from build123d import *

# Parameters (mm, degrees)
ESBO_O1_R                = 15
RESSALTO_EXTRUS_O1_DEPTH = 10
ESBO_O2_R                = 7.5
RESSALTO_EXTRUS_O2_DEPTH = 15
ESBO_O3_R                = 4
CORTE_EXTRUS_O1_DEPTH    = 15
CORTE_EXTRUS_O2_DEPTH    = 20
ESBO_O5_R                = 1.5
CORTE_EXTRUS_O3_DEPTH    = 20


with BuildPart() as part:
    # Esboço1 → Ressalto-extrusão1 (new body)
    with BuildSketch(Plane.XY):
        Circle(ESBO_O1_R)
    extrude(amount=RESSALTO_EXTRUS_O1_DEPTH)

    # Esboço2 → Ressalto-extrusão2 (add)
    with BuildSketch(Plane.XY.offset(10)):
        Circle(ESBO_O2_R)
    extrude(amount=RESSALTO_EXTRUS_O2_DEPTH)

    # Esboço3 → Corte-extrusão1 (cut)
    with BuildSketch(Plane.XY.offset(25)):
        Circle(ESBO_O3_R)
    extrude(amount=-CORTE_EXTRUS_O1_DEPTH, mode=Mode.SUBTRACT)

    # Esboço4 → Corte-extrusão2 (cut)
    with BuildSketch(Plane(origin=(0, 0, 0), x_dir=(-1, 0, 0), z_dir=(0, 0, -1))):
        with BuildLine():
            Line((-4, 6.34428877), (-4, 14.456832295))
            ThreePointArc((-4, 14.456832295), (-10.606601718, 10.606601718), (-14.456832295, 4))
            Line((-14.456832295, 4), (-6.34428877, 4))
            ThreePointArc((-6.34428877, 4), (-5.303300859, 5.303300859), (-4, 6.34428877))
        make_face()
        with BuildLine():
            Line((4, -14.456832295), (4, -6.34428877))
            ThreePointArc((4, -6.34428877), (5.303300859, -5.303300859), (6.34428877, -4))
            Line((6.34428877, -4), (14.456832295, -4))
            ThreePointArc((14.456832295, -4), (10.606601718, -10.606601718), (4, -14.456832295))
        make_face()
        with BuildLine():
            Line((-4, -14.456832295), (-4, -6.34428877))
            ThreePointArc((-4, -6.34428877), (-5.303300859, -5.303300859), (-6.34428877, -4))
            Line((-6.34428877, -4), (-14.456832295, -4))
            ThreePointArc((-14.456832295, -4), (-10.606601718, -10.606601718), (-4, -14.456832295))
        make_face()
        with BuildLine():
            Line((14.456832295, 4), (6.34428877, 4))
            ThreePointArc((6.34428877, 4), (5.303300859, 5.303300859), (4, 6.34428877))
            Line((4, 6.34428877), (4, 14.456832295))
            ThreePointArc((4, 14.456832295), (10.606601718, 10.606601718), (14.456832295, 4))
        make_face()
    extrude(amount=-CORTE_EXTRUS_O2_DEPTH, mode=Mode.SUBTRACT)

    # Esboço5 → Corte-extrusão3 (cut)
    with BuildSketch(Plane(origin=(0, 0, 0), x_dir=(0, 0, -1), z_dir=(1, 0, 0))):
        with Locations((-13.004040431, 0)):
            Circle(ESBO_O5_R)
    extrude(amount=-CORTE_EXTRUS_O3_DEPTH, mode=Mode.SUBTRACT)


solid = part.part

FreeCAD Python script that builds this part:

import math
import FreeCAD as App
import Part
import Sketcher
from FreeCAD import Vector

doc = App.newDocument("Part")
body = doc.addObject("PartDesign::Body", "Body")

# Sketch on XY plane
sketch1 = doc.addObject("Sketcher::SketchObject", "Sketch")
body.addObject(sketch1)
sketch1.AttachmentSupport = (doc.XY_Plane, [""])
sketch1.MapMode = "FlatFace"
sketch1.addGeometry(Part.Circle(Vector(0, 0, 0), Vector(0, 0, 1), 15), False)
sketch1.addConstraint(Sketcher.Constraint("Coincident", 0, 3, -1, 1))
sketch1.addConstraint(Sketcher.Constraint("Diameter", 0, 30.0))
pad1 = doc.addObject("PartDesign::Pad", "Pad")
body.addObject(pad1)
pad1.Profile = sketch1
pad1.Length = 10

# Sketch on XY plane
sketch2 = doc.addObject("Sketcher::SketchObject", "Sketch001")
body.addObject(sketch2)
sketch2.AttachmentSupport = (doc.XY_Plane, [""])
sketch2.MapMode = "FlatFace"
sketch2.AttachmentOffset = App.Placement(Vector(0, 0, 10), App.Rotation())
sketch2.addGeometry(Part.Circle(Vector(0, 0, 0), Vector(0, 0, 1), 8), False)
sketch2.addConstraint(Sketcher.Constraint("Coincident", 0, 3, -1, 1))
sketch2.addConstraint(Sketcher.Constraint("Diameter", 0, 15.0))
pad2 = doc.addObject("PartDesign::Pad", "Pad001")
body.addObject(pad2)
pad2.Profile = sketch2
pad2.Length = 15

# Sketch on XY plane
sketch3 = doc.addObject("Sketcher::SketchObject", "Sketch002")
body.addObject(sketch3)
sketch3.AttachmentSupport = (doc.XY_Plane, [""])
sketch3.MapMode = "FlatFace"
sketch3.AttachmentOffset = App.Placement(Vector(0, 0, 25), App.Rotation())
sketch3.addGeometry(Part.Circle(Vector(0, 0, 0), Vector(0, 0, 1), 4), False)
sketch3.addConstraint(Sketcher.Constraint("Coincident", 0, 3, -1, 1))
sketch3.addConstraint(Sketcher.Constraint("Diameter", 0, 8.0))
pocket1 = doc.addObject("PartDesign::Pocket", "Pocket")
body.addObject(pocket1)
pocket1.Profile = sketch3
pocket1.Length = 15

# Sketch on XY plane
sketch4 = doc.addObject("Sketcher::SketchObject", "Sketch003")
body.addObject(sketch4)
sketch4.AttachmentSupport = (doc.XY_Plane, [""])
sketch4.MapMode = "FlatFace"
sketch4.addGeometry(Part.LineSegment(Vector(4, 6.3, 0), Vector(4, 14.5, 0)), False)
sketch4.addGeometry(Part.ArcOfCircle(Part.Circle(Vector(0, 0, 0), Vector(0, 0, 1), 15), math.radians(15), math.radians(75)), False)
sketch4.addGeometry(Part.LineSegment(Vector(14.5, 4, 0), Vector(6.3, 4, 0)), False)
sketch4.addGeometry(Part.ArcOfCircle(Part.Circle(Vector(0, 0, 0), Vector(0, 0, 1), 7.5), math.radians(32), math.radians(58)), False)
sketch4.addGeometry(Part.LineSegment(Vector(-4, -6.3, 0), Vector(-4, -14.5, 0)), False)
sketch4.addGeometry(Part.ArcOfCircle(Part.Circle(Vector(0, 0, 0), Vector(0, 0, 1), 15), math.radians(-165), math.radians(-105)), False)
sketch4.addGeometry(Part.LineSegment(Vector(-14.5, -4, 0), Vector(-6.3, -4, 0)), False)
sketch4.addGeometry(Part.ArcOfCircle(Part.Circle(Vector(0, 0, 0), Vector(0, 0, 1), 7.5), math.radians(-148), math.radians(-122)), False)
sketch4.addGeometry(Part.LineSegment(Vector(4, -14.5, 0), Vector(4, -6.3, 0)), False)
sketch4.addGeometry(Part.ArcOfCircle(Part.Circle(Vector(0, 0, 0), Vector(0, 0, 1), 7.5), math.radians(-58), math.radians(-32)), False)
sketch4.addGeometry(Part.LineSegment(Vector(6.3, -4, 0), Vector(14.5, -4, 0)), False)
sketch4.addGeometry(Part.ArcOfCircle(Part.Circle(Vector(0, 0, 0), Vector(0, 0, 1), 15), math.radians(-75), math.radians(-15)), False)
sketch4.addGeometry(Part.LineSegment(Vector(-6.3, 4, 0), Vector(-14.5, 4, 0)), False)
sketch4.addGeometry(Part.ArcOfCircle(Part.Circle(Vector(0, 0, 0), Vector(0, 0, 1), 15), math.radians(105), math.radians(165)), False)
sketch4.addGeometry(Part.LineSegment(Vector(-4, 14.5, 0), Vector(-4, 6.3, 0)), False)
sketch4.addGeometry(Part.ArcOfCircle(Part.Circle(Vector(0, 0, 0), Vector(0, 0, 1), 7.5), math.radians(122), math.radians(148)), False)
sketch4.addConstraint(Sketcher.Constraint("Coincident", 0, 2, 1, 2))
sketch4.addConstraint(Sketcher.Constraint("Coincident", 1, 1, 2, 1))
sketch4.addConstraint(Sketcher.Constraint("Coincident", 2, 2, 3, 1))
sketch4.addConstraint(Sketcher.Constraint("Coincident", 3, 2, 0, 1))
sketch4.addConstraint(Sketcher.Constraint("Coincident", 4, 2, 5, 2))
sketch4.addConstraint(Sketcher.Constraint("Coincident", 5, 1, 6, 1))
sketch4.addConstraint(Sketcher.Constraint("Coincident", 6, 2, 7, 1))
sketch4.addConstraint(Sketcher.Constraint("Coincident", 7, 2, 4, 1))
sketch4.addConstraint(Sketcher.Constraint("Coincident", 8, 2, 9, 1))
sketch4.addConstraint(Sketcher.Constraint("Coincident", 9, 2, 10, 1))
sketch4.addConstraint(Sketcher.Constraint("Coincident", 10, 2, 11, 2))
sketch4.addConstraint(Sketcher.Constraint("Coincident", 11, 1, 8, 1))
sketch4.addConstraint(Sketcher.Constraint("Coincident", 12, 2, 13, 2))
sketch4.addConstraint(Sketcher.Constraint("Coincident", 13, 1, 14, 1))
sketch4.addConstraint(Sketcher.Constraint("Coincident", 14, 2, 15, 1))
sketch4.addConstraint(Sketcher.Constraint("Coincident", 15, 2, 12, 1))
sketch4.addConstraint(Sketcher.Constraint("Vertical", 0))
sketch4.addConstraint(Sketcher.Constraint("Horizontal", 2))
sketch4.addConstraint(Sketcher.Constraint("Vertical", 4))
sketch4.addConstraint(Sketcher.Constraint("Horizontal", 6))
sketch4.addConstraint(Sketcher.Constraint("Vertical", 8))
sketch4.addConstraint(Sketcher.Constraint("Horizontal", 10))
sketch4.addConstraint(Sketcher.Constraint("Horizontal", 12))
sketch4.addConstraint(Sketcher.Constraint("Vertical", 14))
sketch4.addConstraint(Sketcher.Constraint("Coincident", 1, 3, -1, 1))
sketch4.addConstraint(Sketcher.Constraint("Coincident", 3, 3, -1, 1))
sketch4.addConstraint(Sketcher.Constraint("Coincident", 5, 3, -1, 1))
sketch4.addConstraint(Sketcher.Constraint("Coincident", 7, 3, -1, 1))
sketch4.addConstraint(Sketcher.Constraint("Coincident", 9, 3, -1, 1))
sketch4.addConstraint(Sketcher.Constraint("Coincident", 11, 3, -1, 1))
sketch4.addConstraint(Sketcher.Constraint("Coincident", 13, 3, -1, 1))
sketch4.addConstraint(Sketcher.Constraint("Coincident", 15, 3, -1, 1))
sketch4.addConstraint(Sketcher.Constraint("Equal", 1, 5))
sketch4.addConstraint(Sketcher.Constraint("Equal", 3, 7))
sketch4.addConstraint(Sketcher.Constraint("Equal", 7, 9))
sketch4.addConstraint(Sketcher.Constraint("Equal", 5, 11))
sketch4.addConstraint(Sketcher.Constraint("Equal", 11, 13))
sketch4.addConstraint(Sketcher.Constraint("Equal", 9, 15))
sketch4.addConstraint(Sketcher.Constraint("Horizontal", 7, 2, 8, 2))
sketch4.addConstraint(Sketcher.Constraint("Horizontal", 6, 2, 9, 2))
sketch4.addConstraint(Sketcher.Constraint("Horizontal", 2, 2, 12, 2))
sketch4.addConstraint(Sketcher.Constraint("Horizontal", 0, 2, 13, 1))
sketch4.addConstraint(Sketcher.Constraint("Vertical", 3, 2, 8, 2))
sketch4.addConstraint(Sketcher.Constraint("Vertical", 2, 2, 9, 2))
sketch4.addConstraint(Sketcher.Constraint("Equal", 12, 0))
sketch4.addConstraint(Sketcher.Constraint("Radius", 1, 15.0))
sketch4.addConstraint(Sketcher.Constraint("Radius", 3, 7.5))
sketch4.addConstraint(Sketcher.Constraint("DistanceX", -1, 1, 0, 2, 4.0))
pocket2 = doc.addObject("PartDesign::Pocket", "Pocket001")
body.addObject(pocket2)
pocket2.Profile = sketch4
pocket2.Length = 20
pocket2.Reversed = True

# Sketch on YZ plane
sketch5 = doc.addObject("Sketcher::SketchObject", "Sketch004")
body.addObject(sketch5)
sketch5.AttachmentSupport = (doc.YZ_Plane, [""])
sketch5.MapMode = "FlatFace"
sketch5.addGeometry(Part.Circle(Vector(0, 13, 0), Vector(0, 0, 1), 1.5), False)
sketch5.addConstraint(Sketcher.Constraint("PointOnObject", 0, 3, -2))
sketch5.addConstraint(Sketcher.Constraint("Diameter", 0, 3.0))
sketch5.addConstraint(Sketcher.Constraint("DistanceY", -1, 1, 0, 3, 13.00404))
pocket3 = doc.addObject("PartDesign::Pocket", "Pocket002")
body.addObject(pocket3)
pocket3.Profile = sketch5
pocket3.Length = 20

doc.recompute()
